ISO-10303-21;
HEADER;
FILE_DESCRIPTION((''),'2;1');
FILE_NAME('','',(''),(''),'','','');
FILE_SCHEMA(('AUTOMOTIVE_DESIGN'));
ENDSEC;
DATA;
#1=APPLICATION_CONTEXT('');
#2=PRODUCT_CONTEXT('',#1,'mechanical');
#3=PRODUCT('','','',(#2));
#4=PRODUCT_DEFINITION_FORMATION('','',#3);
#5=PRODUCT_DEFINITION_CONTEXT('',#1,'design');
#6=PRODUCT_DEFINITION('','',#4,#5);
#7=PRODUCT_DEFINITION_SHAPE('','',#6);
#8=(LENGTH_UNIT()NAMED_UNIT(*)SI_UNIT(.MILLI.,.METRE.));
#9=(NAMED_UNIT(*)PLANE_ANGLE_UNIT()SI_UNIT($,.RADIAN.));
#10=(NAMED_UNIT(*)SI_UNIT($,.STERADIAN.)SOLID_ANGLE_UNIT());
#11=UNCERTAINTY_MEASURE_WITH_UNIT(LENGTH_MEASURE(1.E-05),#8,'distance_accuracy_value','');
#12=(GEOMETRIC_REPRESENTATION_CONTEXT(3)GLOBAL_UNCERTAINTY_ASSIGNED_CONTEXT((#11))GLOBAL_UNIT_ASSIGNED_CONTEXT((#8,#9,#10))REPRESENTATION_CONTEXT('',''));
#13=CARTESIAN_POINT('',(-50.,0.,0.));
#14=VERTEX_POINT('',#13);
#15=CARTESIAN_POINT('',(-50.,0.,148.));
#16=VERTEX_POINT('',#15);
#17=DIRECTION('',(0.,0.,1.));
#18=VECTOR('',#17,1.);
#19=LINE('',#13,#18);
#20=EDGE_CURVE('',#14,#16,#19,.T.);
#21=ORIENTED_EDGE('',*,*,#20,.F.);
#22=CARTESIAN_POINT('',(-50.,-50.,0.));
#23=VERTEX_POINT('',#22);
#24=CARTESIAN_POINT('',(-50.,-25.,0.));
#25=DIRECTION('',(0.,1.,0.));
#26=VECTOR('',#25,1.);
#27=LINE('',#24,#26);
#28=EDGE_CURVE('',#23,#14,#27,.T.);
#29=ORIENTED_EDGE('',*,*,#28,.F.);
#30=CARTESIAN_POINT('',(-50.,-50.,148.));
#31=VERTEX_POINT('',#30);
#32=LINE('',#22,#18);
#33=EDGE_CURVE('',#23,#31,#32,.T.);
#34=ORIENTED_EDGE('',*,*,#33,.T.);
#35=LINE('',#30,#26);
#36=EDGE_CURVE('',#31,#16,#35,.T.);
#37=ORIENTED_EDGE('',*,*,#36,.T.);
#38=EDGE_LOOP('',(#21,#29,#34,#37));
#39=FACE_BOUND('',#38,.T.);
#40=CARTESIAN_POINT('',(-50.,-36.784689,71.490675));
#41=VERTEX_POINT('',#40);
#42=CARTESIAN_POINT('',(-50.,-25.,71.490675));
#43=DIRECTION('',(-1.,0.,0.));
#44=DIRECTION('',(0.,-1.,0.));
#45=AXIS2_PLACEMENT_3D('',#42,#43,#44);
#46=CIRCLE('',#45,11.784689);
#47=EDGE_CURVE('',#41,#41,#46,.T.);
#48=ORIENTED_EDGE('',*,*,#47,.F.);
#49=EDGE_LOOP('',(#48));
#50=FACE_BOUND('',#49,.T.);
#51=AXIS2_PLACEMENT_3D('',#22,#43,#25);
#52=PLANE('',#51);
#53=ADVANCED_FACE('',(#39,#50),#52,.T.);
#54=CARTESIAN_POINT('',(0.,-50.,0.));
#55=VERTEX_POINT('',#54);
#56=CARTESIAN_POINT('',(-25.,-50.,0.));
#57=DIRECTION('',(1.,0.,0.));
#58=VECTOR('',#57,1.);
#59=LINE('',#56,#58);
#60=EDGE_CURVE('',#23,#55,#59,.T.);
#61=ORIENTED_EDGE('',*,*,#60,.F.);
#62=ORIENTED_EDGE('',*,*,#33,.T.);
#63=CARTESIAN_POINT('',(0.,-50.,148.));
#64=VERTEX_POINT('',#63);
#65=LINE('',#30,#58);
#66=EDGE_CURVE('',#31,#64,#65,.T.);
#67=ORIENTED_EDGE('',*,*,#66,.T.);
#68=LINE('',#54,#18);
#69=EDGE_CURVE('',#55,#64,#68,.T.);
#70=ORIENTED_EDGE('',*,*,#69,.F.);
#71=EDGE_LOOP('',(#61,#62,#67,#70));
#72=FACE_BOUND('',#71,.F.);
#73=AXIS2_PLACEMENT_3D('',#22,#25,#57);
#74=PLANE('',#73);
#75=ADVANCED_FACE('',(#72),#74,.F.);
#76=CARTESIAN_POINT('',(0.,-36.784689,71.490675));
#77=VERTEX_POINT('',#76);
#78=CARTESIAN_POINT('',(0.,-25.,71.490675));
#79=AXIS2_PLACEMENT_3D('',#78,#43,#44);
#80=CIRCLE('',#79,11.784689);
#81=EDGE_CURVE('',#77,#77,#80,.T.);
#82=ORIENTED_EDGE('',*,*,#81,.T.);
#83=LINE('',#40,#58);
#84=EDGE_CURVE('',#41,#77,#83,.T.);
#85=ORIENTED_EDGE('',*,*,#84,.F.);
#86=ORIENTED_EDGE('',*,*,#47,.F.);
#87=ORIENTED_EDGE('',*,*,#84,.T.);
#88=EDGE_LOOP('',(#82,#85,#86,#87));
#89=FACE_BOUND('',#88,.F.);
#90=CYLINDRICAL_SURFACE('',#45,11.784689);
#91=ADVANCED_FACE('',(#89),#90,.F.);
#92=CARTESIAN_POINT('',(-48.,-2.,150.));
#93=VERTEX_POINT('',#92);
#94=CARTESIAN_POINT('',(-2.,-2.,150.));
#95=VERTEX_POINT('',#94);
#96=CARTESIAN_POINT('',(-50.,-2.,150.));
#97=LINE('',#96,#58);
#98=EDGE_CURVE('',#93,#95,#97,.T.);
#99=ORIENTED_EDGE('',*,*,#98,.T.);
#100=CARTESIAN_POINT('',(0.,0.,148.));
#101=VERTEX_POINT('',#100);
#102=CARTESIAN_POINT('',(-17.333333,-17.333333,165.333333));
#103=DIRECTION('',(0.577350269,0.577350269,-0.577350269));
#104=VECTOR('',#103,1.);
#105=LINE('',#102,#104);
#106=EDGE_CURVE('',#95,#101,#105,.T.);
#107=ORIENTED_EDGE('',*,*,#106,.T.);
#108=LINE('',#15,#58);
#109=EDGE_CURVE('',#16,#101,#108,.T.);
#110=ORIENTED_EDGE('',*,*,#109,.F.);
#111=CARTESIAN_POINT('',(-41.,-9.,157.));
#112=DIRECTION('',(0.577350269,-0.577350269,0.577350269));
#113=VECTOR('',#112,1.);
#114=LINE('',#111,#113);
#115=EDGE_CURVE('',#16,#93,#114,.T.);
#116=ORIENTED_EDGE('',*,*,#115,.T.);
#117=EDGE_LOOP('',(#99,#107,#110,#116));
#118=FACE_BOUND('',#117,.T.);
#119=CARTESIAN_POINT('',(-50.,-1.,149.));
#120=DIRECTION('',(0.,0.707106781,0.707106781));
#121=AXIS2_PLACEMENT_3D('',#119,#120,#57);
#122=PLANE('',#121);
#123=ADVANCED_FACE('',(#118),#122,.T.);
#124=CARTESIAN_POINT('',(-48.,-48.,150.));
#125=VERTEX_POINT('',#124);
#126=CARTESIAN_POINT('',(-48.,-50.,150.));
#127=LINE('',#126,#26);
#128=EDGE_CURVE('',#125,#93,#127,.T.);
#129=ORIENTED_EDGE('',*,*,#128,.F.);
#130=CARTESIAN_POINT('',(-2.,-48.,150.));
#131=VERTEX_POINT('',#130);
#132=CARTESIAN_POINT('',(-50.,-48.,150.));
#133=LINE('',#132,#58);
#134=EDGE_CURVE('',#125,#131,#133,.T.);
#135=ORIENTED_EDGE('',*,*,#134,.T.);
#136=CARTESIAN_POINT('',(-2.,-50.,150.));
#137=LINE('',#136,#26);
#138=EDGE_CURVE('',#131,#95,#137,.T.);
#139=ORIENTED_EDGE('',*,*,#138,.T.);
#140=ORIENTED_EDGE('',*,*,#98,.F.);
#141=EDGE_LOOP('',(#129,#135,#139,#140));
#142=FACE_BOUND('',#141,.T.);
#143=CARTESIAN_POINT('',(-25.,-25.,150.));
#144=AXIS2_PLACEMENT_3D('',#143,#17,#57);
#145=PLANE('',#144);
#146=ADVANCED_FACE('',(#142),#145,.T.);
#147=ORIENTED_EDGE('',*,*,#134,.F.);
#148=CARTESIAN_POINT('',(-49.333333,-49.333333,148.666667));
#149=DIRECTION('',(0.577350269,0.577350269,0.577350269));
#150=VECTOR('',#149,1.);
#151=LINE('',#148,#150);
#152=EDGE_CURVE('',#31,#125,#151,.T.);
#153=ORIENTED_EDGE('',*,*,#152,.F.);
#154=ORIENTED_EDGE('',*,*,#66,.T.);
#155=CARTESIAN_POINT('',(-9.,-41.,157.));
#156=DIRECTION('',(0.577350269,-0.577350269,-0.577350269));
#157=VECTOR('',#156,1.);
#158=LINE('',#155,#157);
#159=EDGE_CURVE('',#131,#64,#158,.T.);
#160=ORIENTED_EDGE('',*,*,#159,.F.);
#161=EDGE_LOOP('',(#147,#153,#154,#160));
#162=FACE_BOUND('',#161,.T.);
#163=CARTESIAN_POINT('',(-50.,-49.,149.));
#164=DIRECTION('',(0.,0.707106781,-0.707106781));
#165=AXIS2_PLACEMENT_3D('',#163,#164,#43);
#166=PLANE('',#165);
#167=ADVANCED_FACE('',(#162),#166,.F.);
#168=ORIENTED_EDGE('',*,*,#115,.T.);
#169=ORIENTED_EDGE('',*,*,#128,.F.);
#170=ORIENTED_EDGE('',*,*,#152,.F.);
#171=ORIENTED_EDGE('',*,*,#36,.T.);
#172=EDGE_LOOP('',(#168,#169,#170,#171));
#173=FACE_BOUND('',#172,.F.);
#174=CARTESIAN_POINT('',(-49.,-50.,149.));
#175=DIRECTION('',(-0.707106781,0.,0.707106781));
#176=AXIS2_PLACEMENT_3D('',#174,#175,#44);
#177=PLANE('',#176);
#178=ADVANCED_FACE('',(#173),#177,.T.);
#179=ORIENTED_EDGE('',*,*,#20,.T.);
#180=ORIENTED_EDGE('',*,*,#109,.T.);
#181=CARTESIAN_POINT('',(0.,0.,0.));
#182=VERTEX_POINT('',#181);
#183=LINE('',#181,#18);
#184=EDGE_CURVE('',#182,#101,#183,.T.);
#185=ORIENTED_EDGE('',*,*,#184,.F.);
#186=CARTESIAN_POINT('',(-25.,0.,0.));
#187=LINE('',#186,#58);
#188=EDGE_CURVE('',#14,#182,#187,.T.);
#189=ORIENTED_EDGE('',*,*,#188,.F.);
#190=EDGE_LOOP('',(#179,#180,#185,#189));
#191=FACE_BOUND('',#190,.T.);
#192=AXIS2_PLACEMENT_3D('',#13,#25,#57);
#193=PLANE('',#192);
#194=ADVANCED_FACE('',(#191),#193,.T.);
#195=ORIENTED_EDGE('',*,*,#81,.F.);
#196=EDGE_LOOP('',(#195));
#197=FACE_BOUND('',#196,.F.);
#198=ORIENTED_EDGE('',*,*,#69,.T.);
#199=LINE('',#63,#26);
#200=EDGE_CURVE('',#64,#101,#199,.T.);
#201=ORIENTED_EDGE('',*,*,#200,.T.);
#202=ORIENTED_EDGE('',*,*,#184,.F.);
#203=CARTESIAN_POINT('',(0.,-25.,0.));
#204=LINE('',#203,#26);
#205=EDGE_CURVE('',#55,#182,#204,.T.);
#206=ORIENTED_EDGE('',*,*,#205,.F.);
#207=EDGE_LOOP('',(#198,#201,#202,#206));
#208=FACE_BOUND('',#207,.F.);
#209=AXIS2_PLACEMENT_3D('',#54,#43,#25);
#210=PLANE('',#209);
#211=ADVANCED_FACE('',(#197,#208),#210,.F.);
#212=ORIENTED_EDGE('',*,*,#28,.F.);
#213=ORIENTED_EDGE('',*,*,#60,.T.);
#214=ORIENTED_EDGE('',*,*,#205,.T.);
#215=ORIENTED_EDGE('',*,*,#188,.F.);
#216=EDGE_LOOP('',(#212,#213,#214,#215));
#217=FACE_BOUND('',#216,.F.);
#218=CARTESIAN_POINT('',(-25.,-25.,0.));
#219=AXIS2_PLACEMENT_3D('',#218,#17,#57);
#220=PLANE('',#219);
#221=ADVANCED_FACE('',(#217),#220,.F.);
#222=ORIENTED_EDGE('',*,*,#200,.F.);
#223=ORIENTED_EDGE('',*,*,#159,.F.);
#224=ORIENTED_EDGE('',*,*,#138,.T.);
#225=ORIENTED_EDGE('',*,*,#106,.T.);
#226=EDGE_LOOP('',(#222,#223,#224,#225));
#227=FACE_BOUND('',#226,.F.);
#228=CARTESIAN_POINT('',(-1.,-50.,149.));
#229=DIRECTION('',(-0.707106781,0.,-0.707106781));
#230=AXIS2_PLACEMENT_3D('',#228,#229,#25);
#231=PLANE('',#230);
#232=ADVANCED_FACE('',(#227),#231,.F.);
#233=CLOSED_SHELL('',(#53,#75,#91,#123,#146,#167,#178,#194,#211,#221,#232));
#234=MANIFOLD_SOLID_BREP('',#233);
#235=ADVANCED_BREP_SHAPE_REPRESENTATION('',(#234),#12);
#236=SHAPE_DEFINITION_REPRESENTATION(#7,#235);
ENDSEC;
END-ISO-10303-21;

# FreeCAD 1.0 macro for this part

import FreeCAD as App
import Part
import Sketcher
from FreeCAD import Vector


def edges_at(feature, points):
    """Names of the edges that pass closest to the given points."""
    edges = feature.Shape.Edges
    near = lambda p: min(range(len(edges)), key=lambda i: edges[i].distToShape(Part.Vertex(*p))[0])
    return sorted({f"Edge{near(p) + 1}" for p in points})


def add_polygon(sketch, points):
    """Adds a closed chain of lines whose ends are joined by coincident constraints."""
    first, n = sketch.GeometryCount, len(points)
    for a, b in zip(points, points[1:] + points[:1]):
        sketch.addGeometry(Part.LineSegment(App.Vector(*a, 0), App.Vector(*b, 0)), False)
    for i in range(n):
        sketch.addConstraint(Sketcher.Constraint("Coincident", first + i, 2, first + (i + 1) % n, 1))

doc = App.newDocument("Part")
body = doc.addObject("PartDesign::Body", "Body")

sketch1 = body.newObject("Sketcher::SketchObject", "Sketch")
sketch1.AttachmentSupport = (doc.getObject("XY_Plane"), [""])
sketch1.MapMode = "FlatFace"
add_polygon(sketch1, [(-50, 0), (-50, -50), (0, -50), (0, 0)])
sketch1.addConstraint(Sketcher.Constraint("Vertical", 0))
sketch1.addConstraint(Sketcher.Constraint("Horizontal", 1))
sketch1.addConstraint(Sketcher.Constraint("Vertical", 2))
sketch1.addConstraint(Sketcher.Constraint("Horizontal", 3))
sketch1.addConstraint(Sketcher.Constraint("Coincident", 2, 2, -1, 1))
sketch1.addConstraint(Sketcher.Constraint("Equal", 3, 0))
sketch1.addConstraint(Sketcher.Constraint("DistanceX", 1, 1, 1, 2, 50.0))
pad1 = body.newObject("PartDesign::Pad", "Pad")
pad1.Profile = sketch1
pad1.Length = 150

sketch2 = body.newObject("Sketcher::SketchObject", "Sketch001")
sketch2.AttachmentSupport = (doc.getObject("YZ_Plane"), [""])
sketch2.MapMode = "FlatFace"
sketch2.AttachmentOffset = App.Placement(Vector(0, 0, -50), App.Rotation())
sketch2.addGeometry(Part.Circle(Vector(-25, 71, 0), Vector(0, 0, 1), 12), False)
sketch2.addConstraint(Sketcher.Constraint("DistanceX", 0, 3, -1, 1, 25.0))
sketch2.addConstraint(Sketcher.Constraint("Diameter", 0, 23.569378))
sketch2.addConstraint(Sketcher.Constraint("DistanceY", -1, 1, 0, 3, 71.490675))
pocket1 = body.newObject("PartDesign::Pocket", "Pocket")
pocket1.Profile = sketch2
pocket1.Length = 131.62777
pocket1.Reversed = True
doc.recompute()

chamfer = body.newObject("PartDesign::Chamfer", "Chamfer")
chamfer.Base = (pocket1, edges_at(pocket1, [
    (-50, -25, 150),
    (0, -25, 150),
    (-25, -50, 150),
    (-25, 0, 150),
]))
chamfer.Size = 2

doc.recompute()
